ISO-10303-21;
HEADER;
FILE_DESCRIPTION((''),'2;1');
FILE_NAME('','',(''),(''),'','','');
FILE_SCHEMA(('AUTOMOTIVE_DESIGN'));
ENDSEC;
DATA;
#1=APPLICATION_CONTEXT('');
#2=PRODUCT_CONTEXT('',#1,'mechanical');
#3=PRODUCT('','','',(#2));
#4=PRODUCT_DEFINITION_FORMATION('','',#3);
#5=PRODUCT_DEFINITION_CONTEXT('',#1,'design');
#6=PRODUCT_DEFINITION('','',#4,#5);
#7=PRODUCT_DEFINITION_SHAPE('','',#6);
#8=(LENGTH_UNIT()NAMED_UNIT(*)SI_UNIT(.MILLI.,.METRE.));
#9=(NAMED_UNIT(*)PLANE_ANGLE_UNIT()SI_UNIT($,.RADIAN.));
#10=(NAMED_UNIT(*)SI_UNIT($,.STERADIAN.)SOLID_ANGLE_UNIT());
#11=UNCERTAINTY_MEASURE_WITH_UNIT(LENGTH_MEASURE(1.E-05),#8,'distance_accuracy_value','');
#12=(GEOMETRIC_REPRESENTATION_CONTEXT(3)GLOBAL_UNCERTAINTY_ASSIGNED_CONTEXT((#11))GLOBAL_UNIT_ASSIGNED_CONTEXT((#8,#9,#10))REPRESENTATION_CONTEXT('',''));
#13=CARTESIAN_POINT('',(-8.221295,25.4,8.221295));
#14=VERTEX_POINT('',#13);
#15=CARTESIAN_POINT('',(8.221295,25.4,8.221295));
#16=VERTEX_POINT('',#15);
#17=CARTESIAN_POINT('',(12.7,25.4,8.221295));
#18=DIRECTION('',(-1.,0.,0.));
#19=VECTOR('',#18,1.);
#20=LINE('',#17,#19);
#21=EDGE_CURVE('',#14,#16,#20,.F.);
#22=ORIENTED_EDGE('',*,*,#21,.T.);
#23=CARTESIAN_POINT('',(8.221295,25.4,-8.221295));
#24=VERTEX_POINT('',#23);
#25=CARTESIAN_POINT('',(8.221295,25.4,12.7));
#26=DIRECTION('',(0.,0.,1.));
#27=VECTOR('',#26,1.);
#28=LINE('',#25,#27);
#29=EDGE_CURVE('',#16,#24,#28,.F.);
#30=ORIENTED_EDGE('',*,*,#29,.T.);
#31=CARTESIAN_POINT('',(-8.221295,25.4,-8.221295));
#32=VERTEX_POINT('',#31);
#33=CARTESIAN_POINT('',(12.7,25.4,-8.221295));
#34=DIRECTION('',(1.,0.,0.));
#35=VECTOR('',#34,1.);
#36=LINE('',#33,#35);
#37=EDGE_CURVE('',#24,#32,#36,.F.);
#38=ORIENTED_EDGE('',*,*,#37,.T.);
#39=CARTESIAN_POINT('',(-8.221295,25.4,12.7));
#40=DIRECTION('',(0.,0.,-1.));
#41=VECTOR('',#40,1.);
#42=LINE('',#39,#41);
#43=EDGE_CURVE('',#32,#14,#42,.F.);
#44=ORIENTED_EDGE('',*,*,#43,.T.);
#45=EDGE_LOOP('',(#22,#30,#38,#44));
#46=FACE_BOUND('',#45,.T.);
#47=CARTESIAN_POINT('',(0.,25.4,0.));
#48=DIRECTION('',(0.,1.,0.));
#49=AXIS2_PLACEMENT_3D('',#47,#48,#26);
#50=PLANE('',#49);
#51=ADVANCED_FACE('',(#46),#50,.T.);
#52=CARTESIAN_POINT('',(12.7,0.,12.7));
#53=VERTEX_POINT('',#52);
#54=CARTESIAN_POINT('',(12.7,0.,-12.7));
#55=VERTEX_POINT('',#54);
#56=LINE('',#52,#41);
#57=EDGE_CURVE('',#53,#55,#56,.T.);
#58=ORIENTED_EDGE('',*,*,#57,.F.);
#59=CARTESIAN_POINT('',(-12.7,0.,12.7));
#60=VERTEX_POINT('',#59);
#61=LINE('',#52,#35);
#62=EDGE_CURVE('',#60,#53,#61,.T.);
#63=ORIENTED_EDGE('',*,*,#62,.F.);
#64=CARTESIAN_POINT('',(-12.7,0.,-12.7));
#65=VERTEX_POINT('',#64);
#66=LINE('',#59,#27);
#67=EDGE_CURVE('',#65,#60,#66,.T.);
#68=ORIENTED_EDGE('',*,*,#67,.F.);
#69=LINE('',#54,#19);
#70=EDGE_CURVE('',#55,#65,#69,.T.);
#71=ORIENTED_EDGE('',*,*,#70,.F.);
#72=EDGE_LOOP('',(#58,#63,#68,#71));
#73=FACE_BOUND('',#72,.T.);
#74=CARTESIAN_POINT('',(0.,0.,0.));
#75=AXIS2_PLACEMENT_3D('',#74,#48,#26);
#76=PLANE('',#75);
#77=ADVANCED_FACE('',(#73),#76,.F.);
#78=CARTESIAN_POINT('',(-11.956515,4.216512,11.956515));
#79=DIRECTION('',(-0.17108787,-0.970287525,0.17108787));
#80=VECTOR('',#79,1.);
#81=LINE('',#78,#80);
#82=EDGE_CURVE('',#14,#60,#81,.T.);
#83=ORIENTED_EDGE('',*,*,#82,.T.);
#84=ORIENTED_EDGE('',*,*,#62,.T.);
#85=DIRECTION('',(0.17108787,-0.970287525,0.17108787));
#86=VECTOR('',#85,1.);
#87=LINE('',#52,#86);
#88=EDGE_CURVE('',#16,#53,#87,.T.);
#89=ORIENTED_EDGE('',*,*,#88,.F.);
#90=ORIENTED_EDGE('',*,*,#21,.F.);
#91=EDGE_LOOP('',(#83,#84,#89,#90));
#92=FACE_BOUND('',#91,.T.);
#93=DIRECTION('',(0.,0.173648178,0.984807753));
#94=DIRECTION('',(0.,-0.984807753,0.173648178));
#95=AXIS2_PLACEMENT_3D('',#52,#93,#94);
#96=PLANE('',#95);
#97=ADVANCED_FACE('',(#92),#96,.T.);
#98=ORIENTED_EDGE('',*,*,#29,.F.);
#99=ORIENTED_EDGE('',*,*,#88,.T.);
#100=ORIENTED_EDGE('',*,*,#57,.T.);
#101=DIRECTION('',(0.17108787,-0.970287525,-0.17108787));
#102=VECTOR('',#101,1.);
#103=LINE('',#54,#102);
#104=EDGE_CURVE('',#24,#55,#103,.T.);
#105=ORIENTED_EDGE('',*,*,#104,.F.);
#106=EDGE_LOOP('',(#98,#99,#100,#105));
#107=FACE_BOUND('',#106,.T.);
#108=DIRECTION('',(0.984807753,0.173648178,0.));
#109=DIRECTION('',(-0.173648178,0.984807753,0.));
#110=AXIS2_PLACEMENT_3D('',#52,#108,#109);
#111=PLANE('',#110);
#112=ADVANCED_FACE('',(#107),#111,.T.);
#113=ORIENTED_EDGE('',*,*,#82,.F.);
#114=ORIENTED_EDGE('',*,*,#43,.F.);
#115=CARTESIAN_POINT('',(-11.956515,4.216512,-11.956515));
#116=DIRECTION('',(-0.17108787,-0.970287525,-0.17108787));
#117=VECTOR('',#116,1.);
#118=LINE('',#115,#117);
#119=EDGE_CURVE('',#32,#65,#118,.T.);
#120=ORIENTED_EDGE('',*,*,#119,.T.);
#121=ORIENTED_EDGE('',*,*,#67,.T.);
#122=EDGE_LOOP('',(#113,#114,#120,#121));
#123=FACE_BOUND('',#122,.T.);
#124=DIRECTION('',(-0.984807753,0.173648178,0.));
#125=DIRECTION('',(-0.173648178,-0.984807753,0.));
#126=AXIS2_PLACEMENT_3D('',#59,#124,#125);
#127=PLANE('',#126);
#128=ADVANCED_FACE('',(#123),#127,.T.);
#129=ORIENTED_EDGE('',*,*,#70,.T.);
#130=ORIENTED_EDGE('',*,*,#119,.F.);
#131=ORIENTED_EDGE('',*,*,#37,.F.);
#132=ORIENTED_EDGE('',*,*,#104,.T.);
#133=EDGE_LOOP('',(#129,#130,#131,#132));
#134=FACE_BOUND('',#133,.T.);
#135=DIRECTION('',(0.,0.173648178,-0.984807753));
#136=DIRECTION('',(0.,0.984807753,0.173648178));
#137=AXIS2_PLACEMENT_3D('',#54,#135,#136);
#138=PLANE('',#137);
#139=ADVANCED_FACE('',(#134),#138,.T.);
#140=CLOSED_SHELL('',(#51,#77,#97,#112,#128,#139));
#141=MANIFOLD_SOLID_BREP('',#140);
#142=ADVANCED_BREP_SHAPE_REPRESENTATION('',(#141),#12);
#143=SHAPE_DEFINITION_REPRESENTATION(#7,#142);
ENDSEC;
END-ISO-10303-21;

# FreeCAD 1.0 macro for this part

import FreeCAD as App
import Part
import Sketcher
from FreeCAD import Vector
Q = App.Units.Quantity


def add_polygon(sketch, points):
    """Adds a closed chain of lines whose ends are joined by coincident constraints."""
    first, n = sketch.GeometryCount, len(points)
    for a, b in zip(points, points[1:] + points[:1]):
        sketch.addGeometry(Part.LineSegment(App.Vector(*a, 0), App.Vector(*b, 0)), False)
    for i in range(n):
        sketch.addConstraint(Sketcher.Constraint("Coincident", first + i, 2, first + (i + 1) % n, 1))

doc = App.newDocument("Part")
body = doc.addObject("PartDesign::Body", "Body")

# Sketch on XZ plane
sketch1 = body.newObject("Sketcher::SketchObject", "Sketch")
sketch1.AttachmentSupport = (doc.getObject("XZ_Plane"), [""])
sketch1.MapMode = "FlatFace"
add_polygon(sketch1, [(-12.7, -12.7), (-12.7, 12.7), (12.7, 12.7), (12.7, -12.7)])  # lines 0-3
sketch1.addConstraint([
    Sketcher.Constraint("Vertical", 0),
    Sketcher.Constraint("Horizontal", 1),
    Sketcher.Constraint("Vertical", 2),
    Sketcher.Constraint("Horizontal", 3),
    Sketcher.Constraint("Symmetric", 0, 2, 2, 2, -1, 1),
    Sketcher.Constraint("Equal", 3, 0),
    Sketcher.Constraint("DistanceX", 1, 1, 1, 2, Q("1 in")),
])
pad1 = body.newObject("PartDesign::Pad", "Pad")
pad1.Profile = sketch1
pad1.Length = Q("1 in")
pad1.Reversed = True
pad1.TaperAngle = -10

doc.recompute()
